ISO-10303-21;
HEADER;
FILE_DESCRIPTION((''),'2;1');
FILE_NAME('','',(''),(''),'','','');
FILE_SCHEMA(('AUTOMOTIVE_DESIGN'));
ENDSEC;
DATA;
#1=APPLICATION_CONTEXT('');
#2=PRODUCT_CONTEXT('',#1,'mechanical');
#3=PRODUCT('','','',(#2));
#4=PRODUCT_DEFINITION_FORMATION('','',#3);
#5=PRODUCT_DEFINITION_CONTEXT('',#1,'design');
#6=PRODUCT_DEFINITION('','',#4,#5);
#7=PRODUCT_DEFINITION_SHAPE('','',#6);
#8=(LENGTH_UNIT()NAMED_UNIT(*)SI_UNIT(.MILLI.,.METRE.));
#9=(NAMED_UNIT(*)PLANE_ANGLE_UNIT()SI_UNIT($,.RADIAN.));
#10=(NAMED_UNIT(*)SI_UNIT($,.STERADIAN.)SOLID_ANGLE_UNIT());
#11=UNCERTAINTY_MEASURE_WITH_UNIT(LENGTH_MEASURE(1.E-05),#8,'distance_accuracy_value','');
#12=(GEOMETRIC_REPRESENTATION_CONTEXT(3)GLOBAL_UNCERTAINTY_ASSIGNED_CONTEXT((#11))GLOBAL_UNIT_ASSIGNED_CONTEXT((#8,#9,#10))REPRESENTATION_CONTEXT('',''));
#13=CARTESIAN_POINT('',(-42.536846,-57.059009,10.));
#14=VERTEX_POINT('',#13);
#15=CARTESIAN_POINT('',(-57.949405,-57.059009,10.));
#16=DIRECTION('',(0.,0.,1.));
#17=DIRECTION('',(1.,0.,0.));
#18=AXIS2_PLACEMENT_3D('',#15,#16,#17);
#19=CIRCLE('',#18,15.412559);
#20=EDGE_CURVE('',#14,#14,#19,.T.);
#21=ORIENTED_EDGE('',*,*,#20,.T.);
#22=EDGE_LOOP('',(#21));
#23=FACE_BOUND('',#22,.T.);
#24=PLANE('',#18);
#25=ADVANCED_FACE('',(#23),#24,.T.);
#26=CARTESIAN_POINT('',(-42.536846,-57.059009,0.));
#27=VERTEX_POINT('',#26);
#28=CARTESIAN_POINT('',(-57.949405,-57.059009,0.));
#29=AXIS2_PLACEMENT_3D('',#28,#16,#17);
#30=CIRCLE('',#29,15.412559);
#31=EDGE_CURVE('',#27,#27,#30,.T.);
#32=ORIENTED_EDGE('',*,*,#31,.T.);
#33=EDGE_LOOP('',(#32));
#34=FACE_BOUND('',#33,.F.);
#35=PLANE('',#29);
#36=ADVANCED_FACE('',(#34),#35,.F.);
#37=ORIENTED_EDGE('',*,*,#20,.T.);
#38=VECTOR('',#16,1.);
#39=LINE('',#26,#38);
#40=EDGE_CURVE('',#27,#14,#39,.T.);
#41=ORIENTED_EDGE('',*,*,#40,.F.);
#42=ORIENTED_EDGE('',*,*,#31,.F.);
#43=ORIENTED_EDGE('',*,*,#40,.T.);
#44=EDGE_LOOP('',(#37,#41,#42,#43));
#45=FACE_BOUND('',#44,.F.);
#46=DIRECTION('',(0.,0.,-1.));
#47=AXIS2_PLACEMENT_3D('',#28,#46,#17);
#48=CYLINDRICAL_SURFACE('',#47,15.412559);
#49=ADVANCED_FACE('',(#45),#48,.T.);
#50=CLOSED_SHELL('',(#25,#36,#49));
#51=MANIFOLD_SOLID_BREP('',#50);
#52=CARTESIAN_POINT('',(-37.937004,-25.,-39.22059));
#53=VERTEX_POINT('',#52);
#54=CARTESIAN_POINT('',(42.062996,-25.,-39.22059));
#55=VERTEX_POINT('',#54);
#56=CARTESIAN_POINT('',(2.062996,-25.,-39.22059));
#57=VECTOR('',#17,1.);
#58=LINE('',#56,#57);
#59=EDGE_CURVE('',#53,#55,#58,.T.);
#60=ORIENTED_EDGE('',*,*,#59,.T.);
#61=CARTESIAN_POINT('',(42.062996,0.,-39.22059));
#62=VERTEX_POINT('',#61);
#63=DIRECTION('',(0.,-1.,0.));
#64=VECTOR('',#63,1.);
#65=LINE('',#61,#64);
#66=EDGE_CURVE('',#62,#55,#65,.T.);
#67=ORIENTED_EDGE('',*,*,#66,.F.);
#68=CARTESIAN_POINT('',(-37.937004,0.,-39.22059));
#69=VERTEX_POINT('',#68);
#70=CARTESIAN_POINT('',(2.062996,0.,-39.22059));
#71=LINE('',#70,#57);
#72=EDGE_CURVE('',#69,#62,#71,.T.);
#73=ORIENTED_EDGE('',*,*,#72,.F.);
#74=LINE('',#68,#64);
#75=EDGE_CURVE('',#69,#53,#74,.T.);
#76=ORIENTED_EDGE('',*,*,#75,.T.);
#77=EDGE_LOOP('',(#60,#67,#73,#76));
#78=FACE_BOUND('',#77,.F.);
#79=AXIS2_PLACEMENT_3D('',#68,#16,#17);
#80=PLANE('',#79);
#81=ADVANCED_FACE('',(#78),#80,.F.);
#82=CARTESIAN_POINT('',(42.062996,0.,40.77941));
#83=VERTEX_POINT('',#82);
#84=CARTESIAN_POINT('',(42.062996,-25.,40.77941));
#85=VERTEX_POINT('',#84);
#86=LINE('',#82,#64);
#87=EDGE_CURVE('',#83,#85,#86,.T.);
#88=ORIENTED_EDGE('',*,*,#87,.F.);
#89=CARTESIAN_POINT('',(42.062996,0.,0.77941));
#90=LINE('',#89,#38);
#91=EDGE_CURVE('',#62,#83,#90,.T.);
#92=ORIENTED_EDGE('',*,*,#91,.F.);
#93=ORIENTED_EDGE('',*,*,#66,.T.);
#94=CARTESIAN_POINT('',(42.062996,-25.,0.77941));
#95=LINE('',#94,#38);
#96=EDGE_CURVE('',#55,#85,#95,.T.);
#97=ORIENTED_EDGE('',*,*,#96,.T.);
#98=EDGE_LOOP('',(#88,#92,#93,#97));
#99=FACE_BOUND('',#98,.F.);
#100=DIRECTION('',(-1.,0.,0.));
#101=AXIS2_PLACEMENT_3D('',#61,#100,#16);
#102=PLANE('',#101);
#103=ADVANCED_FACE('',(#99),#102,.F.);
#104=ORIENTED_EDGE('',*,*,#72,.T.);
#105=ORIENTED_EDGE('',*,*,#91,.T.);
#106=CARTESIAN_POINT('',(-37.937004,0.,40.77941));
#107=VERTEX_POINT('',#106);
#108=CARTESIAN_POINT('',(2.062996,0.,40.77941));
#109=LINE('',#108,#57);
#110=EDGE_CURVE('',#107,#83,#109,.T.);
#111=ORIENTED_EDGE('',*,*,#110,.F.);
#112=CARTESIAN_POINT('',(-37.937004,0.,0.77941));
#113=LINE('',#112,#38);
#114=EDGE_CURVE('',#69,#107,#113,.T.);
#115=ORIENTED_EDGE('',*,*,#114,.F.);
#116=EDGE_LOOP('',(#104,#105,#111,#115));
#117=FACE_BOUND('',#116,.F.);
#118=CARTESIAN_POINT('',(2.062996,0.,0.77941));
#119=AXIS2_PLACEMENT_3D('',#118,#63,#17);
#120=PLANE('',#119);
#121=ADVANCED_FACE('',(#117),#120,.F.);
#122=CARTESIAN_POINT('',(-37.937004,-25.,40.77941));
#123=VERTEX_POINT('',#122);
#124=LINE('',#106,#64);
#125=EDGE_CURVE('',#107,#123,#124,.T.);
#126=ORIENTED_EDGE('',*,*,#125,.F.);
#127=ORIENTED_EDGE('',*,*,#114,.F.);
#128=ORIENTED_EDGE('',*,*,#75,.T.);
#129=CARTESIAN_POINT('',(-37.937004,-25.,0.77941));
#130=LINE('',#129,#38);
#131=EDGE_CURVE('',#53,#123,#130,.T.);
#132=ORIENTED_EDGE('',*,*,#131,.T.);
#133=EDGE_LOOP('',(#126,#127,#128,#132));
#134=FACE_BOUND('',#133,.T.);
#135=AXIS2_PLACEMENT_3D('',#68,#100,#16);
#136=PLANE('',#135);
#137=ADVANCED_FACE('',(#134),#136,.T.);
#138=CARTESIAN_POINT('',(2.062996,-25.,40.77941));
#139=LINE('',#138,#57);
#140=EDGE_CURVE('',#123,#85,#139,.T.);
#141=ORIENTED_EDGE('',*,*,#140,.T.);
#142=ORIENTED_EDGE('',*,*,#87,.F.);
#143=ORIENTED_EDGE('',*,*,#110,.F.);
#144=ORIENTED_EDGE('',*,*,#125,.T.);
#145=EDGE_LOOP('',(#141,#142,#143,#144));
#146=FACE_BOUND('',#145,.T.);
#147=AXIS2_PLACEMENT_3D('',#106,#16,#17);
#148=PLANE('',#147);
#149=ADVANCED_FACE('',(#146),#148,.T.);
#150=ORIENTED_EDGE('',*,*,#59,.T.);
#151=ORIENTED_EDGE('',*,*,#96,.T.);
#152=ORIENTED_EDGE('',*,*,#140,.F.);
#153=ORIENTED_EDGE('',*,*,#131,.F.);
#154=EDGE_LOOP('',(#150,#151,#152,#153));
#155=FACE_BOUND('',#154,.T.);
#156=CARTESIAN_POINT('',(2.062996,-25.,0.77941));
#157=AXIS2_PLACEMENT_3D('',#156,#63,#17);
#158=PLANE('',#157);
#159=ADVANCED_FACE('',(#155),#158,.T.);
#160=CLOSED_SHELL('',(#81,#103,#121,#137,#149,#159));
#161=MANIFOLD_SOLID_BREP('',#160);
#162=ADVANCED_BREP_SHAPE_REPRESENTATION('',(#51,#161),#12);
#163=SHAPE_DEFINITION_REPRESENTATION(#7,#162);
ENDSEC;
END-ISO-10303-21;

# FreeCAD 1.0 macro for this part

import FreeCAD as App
import Part
import Sketcher


def add_polygon(sketch, points):
    """Adds a closed chain of lines whose ends are joined by coincident constraints."""
    first, n = sketch.GeometryCount, len(points)
    for a, b in zip(points, points[1:] + points[:1]):
        sketch.addGeometry(Part.LineSegment(App.Vector(*a, 0), App.Vector(*b, 0)), False)
    for i in range(n):
        sketch.addConstraint(Sketcher.Constraint("Coincident", first + i, 2, first + (i + 1) % n, 1))

doc = App.newDocument("Part")
body = doc.addObject("PartDesign::Body", "Body")

sketch1 = doc.addObject("Sketcher::SketchObject", "Sketch")
body.addObject(sketch1)
sketch1.AttachmentSupport = (doc.XZ_Plane, [""])
sketch1.MapMode = "FlatFace"
add_polygon(sketch1, [(-38, 41), (-38, -39), (42, -39), (42, 41)])
sketch1.addConstraint([
    Sketcher.Constraint("Vertical", 0),
    Sketcher.Constraint("Horizontal", 1),
    Sketcher.Constraint("Vertical", 2),
    Sketcher.Constraint("Horizontal", 3),
    Sketcher.Constraint("Equal", 3, 0),
    Sketcher.Constraint("DistanceX", 1, 1, 1, 2, 80.0),
    Sketcher.Constraint("DistanceY", 0, 2, -1, 1, 39.22059),
    Sketcher.Constraint("DistanceX", 0, 2, -1, 1, 37.937004),
])
pad1 = doc.addObject("PartDesign::Pad", "Pad")
body.addObject(pad1)
pad1.Profile = sketch1
pad1.Length = 25
body2 = doc.addObject("PartDesign::Body", "Body001")

sketch2 = doc.addObject("Sketcher::SketchObject", "Sketch001")
body2.addObject(sketch2)
sketch2.AttachmentSupport = (doc.getObject("XY_Plane001"), [""])
sketch2.MapMode = "FlatFace"
sketch2.addGeometry(Part.Circle(App.Vector(-58, -57, 0), App.Vector(0, 0, 1), 15), False)
sketch2.addConstraint([
    Sketcher.Constraint("Diameter", 0, 30.825118),
    Sketcher.Constraint("DistanceY", 0, 3, -1, 1, 57.059009),
    Sketcher.Constraint("DistanceX", 0, 3, -1, 1, 57.949405),
])
pad2 = doc.addObject("PartDesign::Pad", "Pad001")
body2.addObject(pad2)
pad2.Profile = sketch2
pad2.Length = 10

doc.recompute()
